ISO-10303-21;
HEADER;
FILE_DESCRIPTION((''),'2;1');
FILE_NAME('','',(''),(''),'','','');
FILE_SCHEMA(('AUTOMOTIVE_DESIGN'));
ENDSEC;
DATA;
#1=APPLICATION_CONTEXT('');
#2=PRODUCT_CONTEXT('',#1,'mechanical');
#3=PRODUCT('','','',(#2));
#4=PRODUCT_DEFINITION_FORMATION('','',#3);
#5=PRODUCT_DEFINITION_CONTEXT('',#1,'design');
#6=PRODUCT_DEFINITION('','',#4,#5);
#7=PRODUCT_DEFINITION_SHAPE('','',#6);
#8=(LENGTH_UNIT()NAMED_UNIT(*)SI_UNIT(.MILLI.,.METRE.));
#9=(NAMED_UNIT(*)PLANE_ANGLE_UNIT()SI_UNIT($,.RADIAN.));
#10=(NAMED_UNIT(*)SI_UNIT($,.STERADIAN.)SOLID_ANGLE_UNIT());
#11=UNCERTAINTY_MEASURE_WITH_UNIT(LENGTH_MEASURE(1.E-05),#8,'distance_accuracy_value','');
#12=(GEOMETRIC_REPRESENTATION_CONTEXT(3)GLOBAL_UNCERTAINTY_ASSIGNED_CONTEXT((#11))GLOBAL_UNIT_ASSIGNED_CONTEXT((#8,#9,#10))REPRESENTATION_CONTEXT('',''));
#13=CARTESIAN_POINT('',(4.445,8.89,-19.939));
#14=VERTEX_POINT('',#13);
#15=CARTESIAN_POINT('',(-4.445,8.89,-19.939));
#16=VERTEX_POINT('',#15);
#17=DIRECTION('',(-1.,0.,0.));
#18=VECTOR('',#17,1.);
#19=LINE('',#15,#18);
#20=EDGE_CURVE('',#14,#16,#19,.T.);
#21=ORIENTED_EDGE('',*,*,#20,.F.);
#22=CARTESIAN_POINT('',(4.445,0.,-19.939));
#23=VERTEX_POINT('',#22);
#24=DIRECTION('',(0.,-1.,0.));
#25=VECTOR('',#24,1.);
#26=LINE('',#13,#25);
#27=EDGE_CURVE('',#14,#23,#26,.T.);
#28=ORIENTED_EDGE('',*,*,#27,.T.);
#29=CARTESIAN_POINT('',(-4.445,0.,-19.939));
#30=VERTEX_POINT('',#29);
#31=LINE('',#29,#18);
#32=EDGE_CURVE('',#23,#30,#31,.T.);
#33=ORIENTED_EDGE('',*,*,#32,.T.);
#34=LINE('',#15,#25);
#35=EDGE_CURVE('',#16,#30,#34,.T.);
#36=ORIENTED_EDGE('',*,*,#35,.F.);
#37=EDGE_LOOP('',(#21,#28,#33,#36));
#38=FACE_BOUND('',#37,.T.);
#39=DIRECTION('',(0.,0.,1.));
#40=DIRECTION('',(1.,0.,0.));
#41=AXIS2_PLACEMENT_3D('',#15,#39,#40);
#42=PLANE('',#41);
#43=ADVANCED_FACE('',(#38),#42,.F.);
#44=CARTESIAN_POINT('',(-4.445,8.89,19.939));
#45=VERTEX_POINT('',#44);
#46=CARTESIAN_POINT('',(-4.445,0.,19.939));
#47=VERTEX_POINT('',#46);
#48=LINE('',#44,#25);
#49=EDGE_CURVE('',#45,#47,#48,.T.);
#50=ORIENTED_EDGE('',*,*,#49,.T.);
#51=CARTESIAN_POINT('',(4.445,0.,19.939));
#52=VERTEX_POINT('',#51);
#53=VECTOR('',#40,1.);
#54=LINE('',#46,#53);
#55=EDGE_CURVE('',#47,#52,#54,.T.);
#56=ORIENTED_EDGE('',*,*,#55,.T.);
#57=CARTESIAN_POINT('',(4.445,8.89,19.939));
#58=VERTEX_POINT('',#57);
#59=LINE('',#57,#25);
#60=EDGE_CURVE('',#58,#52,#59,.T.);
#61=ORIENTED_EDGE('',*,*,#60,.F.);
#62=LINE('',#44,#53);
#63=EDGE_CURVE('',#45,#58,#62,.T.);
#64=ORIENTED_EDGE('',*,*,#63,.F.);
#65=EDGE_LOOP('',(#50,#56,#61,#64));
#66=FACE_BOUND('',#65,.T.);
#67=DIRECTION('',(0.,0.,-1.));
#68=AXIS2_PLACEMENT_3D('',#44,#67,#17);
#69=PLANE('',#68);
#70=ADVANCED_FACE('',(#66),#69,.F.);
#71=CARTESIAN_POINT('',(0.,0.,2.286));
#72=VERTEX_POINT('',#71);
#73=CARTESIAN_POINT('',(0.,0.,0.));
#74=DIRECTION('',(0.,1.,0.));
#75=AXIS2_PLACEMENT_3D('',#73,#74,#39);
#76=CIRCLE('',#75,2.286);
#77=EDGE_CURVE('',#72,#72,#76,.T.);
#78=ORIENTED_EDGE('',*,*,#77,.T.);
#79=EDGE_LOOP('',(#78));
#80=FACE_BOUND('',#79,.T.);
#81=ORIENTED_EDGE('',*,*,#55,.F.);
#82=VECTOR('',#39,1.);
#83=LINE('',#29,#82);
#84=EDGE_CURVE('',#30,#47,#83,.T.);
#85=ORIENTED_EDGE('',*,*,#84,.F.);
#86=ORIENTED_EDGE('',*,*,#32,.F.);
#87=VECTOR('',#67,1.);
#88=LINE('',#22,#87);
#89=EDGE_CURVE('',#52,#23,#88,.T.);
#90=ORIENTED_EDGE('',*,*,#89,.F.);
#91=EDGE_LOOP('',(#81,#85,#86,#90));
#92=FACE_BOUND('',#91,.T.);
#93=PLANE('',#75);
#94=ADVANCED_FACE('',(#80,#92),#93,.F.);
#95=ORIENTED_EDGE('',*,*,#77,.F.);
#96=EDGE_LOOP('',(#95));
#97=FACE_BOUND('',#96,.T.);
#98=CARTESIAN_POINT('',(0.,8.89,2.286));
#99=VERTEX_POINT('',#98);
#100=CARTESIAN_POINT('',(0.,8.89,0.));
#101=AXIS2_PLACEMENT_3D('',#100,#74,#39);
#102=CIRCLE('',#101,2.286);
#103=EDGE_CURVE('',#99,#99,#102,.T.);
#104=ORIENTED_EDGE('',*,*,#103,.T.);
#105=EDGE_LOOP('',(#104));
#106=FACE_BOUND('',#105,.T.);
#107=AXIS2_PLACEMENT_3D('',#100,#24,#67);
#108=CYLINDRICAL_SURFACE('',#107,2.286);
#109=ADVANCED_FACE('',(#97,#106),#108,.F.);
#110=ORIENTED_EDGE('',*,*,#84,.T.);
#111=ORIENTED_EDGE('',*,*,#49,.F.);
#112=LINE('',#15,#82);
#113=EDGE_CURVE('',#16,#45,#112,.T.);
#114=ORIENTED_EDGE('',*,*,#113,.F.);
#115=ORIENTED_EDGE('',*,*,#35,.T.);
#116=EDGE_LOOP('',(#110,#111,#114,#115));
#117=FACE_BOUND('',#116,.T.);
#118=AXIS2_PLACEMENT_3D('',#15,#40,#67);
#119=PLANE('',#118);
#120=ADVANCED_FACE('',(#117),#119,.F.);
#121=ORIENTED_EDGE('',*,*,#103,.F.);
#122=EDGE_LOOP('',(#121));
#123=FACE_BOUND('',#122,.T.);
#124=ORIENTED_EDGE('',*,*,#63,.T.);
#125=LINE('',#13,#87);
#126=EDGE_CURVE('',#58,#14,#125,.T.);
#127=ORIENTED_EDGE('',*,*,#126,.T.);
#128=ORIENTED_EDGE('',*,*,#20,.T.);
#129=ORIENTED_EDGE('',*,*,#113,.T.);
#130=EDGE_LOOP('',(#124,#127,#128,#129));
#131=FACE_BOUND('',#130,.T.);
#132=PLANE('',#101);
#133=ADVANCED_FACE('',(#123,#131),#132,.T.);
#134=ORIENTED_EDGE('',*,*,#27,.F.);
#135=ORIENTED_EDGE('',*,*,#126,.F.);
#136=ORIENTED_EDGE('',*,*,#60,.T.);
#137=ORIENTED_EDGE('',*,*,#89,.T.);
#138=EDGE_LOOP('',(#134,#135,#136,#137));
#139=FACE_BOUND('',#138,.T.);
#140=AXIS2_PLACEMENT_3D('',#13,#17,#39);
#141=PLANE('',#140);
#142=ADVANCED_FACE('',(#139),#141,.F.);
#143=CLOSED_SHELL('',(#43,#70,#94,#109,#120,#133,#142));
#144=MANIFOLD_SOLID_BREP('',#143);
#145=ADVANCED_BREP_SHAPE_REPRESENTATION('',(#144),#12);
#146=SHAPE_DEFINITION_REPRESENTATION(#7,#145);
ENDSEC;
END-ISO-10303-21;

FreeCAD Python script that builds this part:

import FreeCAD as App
import Part
import Sketcher
from FreeCAD import Vector
Q = App.Units.Quantity

doc = App.newDocument("Part")
body = doc.addObject("PartDesign::Body", "Body")

sketch1 = body.newObject("Sketcher::SketchObject", "Sketch")
sketch1.AttachmentSupport = (doc.getObject("XZ_Plane"), [""])
sketch1.MapMode = "FlatFace"
sketch1.addGeometry([
    Part.LineSegment(Vector(-4.4, -19.9, 0), Vector(-4.4, 19.9, 0)),
    Part.LineSegment(Vector(-4.4, 19.9, 0), Vector(4.4, 19.9, 0)),
    Part.LineSegment(Vector(4.4, 19.9, 0), Vector(4.4, -19.9, 0)),
    Part.LineSegment(Vector(4.4, -19.9, 0), Vector(-4.4, -19.9, 0)),
    Part.Circle(Vector(0, 0, 0), Vector(0, 0, 1), 2.3),
], False)
sketch1.addConstraint([
    Sketcher.Constraint("Coincident", 0, 2, 1, 1),
    Sketcher.Constraint("Coincident", 1, 2, 2, 1),
    Sketcher.Constraint("Coincident", 2, 2, 3, 1),
    Sketcher.Constraint("Coincident", 3, 2, 0, 1),
    Sketcher.Constraint("Vertical", 0),
    Sketcher.Constraint("Horizontal", 1),
    Sketcher.Constraint("Vertical", 2),
    Sketcher.Constraint("Horizontal", 3),
    Sketcher.Constraint("Coincident", 4, 3, -1, 1),
    Sketcher.Constraint("Symmetric", 0, 2, 2, 2, -1, 1),
    Sketcher.Constraint("Diameter", 4, Q("0.18 in")),
    Sketcher.Constraint("DistanceX", 1, 1, 1, 2, Q("0.35 in")),
    Sketcher.Constraint("DistanceY", 0, 1, 0, 2, Q("1.57 in")),
])
pad1 = body.newObject("PartDesign::Pad", "Pad")
pad1.Profile = sketch1
pad1.Length = Q("0.35 in")
pad1.Reversed = True

doc.recompute()
